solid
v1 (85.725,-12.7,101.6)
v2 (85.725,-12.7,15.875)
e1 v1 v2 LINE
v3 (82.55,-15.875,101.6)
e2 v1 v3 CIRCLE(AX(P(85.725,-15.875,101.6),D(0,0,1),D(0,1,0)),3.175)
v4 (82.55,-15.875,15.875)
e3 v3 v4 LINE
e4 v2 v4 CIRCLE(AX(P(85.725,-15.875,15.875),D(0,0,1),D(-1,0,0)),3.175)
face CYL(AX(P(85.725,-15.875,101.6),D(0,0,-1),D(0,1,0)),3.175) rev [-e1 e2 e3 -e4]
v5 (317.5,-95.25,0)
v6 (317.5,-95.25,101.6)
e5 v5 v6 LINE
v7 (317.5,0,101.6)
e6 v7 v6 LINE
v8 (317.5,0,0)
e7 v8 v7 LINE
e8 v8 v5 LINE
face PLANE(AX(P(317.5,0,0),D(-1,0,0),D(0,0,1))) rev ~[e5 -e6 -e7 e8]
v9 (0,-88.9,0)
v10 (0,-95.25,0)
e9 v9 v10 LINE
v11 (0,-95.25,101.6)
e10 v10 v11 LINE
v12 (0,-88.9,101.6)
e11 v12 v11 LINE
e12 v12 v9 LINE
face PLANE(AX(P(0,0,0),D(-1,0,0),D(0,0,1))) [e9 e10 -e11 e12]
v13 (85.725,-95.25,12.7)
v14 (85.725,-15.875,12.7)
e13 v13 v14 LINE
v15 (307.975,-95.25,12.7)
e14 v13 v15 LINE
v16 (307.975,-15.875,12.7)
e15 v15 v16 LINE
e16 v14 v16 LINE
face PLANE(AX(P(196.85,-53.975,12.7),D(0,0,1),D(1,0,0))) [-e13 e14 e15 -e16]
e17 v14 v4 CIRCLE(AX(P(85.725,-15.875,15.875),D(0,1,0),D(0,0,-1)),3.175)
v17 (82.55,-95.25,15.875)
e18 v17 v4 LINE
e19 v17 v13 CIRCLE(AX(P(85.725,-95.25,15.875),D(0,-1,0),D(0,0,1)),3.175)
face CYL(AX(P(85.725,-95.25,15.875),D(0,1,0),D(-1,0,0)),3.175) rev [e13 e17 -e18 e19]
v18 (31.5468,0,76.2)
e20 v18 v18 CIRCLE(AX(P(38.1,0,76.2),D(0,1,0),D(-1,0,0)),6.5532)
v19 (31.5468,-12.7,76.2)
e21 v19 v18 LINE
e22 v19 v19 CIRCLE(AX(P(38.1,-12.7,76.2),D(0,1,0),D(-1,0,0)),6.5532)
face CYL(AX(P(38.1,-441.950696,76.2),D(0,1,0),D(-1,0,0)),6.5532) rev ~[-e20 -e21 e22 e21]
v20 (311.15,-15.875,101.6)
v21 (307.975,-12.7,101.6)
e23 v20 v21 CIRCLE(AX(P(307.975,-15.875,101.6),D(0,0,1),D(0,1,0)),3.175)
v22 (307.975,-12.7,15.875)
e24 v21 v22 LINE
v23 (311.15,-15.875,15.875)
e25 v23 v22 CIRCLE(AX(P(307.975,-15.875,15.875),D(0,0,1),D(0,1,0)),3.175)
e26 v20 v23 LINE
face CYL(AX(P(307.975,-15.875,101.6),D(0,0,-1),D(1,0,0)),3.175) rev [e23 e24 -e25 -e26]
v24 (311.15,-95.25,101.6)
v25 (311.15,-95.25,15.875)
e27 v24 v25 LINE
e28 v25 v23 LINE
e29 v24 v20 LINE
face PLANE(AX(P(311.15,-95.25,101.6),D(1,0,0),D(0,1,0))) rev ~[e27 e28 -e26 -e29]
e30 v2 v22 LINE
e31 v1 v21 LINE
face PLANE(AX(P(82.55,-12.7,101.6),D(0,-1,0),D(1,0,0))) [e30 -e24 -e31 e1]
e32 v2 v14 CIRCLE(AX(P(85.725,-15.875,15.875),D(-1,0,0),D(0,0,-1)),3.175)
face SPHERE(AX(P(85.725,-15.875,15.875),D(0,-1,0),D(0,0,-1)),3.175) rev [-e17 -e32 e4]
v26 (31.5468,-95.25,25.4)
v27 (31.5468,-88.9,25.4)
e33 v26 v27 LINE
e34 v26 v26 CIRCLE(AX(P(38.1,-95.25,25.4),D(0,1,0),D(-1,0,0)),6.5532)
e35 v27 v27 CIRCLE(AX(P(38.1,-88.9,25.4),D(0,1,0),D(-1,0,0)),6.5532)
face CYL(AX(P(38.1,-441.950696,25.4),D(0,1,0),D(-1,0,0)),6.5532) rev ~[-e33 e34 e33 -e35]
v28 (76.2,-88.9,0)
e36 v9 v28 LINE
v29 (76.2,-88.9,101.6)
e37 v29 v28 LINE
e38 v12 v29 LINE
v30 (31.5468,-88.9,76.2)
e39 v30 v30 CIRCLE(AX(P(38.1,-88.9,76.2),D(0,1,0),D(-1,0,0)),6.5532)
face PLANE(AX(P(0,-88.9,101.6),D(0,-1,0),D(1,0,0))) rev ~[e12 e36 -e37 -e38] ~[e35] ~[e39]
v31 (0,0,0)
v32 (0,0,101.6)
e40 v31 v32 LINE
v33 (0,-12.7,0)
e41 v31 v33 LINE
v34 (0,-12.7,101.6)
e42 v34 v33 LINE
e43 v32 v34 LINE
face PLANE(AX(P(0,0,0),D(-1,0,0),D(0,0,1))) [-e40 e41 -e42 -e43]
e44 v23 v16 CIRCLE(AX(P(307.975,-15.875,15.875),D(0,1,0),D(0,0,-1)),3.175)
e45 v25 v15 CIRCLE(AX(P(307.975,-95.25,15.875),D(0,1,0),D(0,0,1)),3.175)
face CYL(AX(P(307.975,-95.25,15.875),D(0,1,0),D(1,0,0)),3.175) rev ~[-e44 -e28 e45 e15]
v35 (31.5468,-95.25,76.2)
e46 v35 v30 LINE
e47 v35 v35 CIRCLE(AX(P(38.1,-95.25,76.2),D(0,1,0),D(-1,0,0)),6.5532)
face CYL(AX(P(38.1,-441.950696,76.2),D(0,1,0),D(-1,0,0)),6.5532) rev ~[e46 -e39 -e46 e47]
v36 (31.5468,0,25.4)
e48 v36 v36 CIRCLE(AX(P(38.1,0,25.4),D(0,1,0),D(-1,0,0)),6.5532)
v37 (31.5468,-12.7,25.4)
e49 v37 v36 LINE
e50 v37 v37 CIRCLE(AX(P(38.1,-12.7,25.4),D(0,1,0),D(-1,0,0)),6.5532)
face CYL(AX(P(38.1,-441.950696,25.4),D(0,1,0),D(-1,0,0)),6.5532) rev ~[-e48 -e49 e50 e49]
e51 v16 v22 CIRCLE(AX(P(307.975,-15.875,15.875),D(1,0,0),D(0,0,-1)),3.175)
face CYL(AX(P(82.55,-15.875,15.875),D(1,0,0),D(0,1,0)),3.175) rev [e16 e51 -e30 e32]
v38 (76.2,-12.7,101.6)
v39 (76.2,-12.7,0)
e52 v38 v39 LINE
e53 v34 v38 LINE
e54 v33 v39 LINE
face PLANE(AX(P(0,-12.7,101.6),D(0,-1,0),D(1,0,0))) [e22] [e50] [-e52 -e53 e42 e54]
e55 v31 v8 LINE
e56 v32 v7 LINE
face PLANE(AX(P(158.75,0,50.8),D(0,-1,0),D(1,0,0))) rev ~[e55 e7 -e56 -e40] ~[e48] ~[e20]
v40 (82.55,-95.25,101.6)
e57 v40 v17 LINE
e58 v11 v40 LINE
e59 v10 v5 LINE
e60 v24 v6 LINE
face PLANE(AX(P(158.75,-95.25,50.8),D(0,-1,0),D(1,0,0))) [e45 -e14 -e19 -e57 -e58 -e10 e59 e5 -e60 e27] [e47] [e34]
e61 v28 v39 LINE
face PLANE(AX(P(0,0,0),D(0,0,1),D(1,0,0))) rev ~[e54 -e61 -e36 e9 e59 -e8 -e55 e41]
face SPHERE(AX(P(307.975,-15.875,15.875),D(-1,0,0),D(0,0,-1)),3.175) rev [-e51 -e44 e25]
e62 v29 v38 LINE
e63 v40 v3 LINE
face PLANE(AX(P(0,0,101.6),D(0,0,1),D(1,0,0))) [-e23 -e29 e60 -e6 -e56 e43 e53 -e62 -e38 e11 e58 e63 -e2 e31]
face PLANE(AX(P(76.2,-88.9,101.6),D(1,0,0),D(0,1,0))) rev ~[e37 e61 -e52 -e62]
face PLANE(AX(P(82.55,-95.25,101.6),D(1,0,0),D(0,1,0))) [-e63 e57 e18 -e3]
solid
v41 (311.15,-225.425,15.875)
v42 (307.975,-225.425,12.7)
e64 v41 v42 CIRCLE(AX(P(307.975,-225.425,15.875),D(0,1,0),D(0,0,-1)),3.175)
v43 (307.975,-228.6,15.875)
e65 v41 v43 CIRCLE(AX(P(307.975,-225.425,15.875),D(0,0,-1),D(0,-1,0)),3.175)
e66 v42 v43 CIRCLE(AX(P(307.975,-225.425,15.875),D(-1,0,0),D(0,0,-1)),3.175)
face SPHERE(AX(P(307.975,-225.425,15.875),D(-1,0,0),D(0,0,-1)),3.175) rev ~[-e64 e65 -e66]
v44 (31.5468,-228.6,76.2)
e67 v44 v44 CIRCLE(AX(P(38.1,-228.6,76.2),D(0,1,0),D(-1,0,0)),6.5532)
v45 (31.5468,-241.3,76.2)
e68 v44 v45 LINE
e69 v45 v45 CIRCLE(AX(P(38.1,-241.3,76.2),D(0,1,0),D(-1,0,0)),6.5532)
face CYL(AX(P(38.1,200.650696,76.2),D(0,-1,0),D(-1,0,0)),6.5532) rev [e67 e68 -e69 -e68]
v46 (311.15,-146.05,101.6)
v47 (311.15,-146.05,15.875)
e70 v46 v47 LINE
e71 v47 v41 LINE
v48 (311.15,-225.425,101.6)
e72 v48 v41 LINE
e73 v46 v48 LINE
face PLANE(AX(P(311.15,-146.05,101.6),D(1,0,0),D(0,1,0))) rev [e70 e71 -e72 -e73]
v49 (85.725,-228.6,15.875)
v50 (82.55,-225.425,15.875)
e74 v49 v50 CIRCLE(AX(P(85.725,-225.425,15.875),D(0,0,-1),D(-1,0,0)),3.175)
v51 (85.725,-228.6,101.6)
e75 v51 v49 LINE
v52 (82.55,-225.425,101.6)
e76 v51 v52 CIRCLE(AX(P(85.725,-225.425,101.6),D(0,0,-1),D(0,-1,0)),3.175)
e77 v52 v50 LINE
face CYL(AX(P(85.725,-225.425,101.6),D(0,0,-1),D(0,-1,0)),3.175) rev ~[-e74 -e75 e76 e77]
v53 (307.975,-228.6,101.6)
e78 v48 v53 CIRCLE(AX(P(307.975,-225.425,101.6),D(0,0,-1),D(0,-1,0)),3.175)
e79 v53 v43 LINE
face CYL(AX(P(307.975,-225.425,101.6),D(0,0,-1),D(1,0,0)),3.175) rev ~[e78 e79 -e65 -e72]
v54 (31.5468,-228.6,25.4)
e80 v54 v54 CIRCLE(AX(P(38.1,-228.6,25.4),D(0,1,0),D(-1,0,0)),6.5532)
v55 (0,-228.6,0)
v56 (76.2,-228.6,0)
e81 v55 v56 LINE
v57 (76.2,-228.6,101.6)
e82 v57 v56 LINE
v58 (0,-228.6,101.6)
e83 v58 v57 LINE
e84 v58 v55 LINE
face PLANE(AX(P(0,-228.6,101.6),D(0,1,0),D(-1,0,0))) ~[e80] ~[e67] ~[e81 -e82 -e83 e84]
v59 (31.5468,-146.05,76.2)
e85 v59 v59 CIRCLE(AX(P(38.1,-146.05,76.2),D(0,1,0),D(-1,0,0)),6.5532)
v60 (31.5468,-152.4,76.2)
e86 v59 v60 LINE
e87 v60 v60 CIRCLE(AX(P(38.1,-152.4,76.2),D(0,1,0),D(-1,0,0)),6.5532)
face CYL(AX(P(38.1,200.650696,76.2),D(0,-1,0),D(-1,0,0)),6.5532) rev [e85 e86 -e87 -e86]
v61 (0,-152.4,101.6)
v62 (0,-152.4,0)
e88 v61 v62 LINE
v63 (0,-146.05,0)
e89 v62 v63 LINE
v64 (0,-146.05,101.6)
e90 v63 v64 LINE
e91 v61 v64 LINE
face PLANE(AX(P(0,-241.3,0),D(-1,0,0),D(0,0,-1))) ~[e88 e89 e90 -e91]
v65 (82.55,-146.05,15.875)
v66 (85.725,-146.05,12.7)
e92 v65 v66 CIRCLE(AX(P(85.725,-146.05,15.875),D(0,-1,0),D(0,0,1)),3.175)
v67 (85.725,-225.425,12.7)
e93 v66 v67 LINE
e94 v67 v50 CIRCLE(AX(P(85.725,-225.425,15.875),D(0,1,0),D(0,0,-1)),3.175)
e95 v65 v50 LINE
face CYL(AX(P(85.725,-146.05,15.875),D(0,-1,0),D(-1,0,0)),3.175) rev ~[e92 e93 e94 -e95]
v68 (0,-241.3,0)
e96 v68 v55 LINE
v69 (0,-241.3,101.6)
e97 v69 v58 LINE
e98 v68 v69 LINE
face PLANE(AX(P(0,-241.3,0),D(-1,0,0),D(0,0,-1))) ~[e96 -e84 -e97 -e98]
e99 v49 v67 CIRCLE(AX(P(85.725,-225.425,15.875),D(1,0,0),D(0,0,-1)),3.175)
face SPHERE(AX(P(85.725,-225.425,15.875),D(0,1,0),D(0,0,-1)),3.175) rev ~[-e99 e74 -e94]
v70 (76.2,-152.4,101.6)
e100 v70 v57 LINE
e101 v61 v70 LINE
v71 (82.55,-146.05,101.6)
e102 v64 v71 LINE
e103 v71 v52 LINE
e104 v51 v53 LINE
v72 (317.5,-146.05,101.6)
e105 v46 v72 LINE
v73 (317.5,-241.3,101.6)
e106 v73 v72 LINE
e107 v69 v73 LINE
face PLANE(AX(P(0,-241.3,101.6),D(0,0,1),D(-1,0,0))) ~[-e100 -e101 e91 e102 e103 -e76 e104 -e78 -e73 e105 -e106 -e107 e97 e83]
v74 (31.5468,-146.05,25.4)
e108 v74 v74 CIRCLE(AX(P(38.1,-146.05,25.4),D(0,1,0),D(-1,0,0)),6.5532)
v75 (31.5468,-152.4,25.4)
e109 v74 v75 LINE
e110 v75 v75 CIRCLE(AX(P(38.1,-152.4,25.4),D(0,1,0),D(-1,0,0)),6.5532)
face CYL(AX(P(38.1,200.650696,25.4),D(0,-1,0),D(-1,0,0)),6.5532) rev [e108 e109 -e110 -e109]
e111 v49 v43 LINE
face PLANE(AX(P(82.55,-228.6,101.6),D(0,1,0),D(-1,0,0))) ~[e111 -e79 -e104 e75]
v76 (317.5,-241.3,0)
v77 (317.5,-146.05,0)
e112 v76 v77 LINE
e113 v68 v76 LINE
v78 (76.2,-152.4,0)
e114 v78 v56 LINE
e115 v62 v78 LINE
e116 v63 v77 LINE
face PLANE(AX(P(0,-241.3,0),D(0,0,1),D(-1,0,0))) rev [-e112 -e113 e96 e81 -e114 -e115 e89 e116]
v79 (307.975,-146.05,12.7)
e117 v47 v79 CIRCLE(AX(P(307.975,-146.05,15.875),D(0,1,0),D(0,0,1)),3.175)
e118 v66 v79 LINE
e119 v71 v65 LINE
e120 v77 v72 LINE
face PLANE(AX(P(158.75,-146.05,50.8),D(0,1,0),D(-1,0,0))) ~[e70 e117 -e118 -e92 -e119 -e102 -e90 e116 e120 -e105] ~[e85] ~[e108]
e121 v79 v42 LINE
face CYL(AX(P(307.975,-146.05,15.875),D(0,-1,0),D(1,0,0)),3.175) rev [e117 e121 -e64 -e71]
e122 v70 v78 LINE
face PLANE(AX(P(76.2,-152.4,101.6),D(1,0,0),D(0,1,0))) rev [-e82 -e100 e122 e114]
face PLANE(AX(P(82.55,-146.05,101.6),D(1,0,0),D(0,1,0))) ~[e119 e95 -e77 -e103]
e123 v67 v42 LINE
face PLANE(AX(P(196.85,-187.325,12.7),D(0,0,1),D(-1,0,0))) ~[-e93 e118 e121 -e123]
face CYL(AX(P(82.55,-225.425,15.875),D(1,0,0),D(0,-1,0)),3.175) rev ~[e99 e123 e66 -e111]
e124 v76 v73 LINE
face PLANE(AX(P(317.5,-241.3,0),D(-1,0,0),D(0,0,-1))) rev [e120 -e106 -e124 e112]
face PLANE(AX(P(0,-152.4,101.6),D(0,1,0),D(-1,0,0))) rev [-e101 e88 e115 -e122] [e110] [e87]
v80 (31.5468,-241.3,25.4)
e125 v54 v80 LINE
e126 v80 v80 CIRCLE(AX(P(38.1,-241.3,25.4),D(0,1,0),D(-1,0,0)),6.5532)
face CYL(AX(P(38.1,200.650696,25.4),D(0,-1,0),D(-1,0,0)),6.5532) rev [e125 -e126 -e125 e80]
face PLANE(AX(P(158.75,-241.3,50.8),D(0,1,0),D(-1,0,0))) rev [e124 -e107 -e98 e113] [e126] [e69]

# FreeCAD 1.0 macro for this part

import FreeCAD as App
import Part
import Sketcher

V = App.Vector
Q = App.Units.Quantity


def edges_at(feature, points):
    """Names of the edges that pass closest to the given points."""
    edges = feature.Shape.Edges
    near = lambda p: min(range(len(edges)), key=lambda i: edges[i].distToShape(Part.Vertex(*p))[0])
    return sorted({f"Edge{near(p) + 1}" for p in points})

doc = App.newDocument("Part")
params = doc.addObject("Spreadsheet::Sheet", "Params")
for row, (alias, value) in enumerate([
    ("sketch1_height", "4 in"),
    ("sketch1_width", "12.5 in"),
    ("pad1_length", "3.75 in"),
    ("sketch2_width", "3 in"),
    ("sketch3_width", "9 in"),
    ("sketch3_height", "3.25 in"),
    ("pocket2_length", "3.5 in"),
    ("fillet_radius", "0.125 in"),
    ("sketch4_diameter", "0.516 in"),
    ("hole_diameter", "0.516 in"),
], start=1):
    params.set(f"A{row}", alias)
    params.set(f"B{row}", "=" + value)
    params.setAlias(f"B{row}", alias)

body = doc.addObject("PartDesign::Body", "Body")

# Sketch on XZ plane
sketch1 = body.newObject("Sketcher::SketchObject", "Sketch")
sketch1.AttachmentSupport = (doc.getObject("XZ_Plane"), [""])
sketch1.MapMode = "FlatFace"
sketch1.addGeometry([
    Part.LineSegment(V(0, 102, 0), V(0, 0, 0)),
    Part.LineSegment(V(0, 0, 0), V(318, 0, 0)),
    Part.LineSegment(V(318, 0, 0), V(318, 102, 0)),
    Part.LineSegment(V(318, 102, 0), V(0, 102, 0)),
], False)
sketch1.addConstraint([
    Sketcher.Constraint("Coincident", 0, 2, 1, 1),
    Sketcher.Constraint("Coincident", 1, 2, 2, 1),
    Sketcher.Constraint("Coincident", 2, 2, 3, 1),
    Sketcher.Constraint("Coincident", 3, 2, 0, 1),
    Sketcher.Constraint("Vertical", 0),
    Sketcher.Constraint("Horizontal", 1),
    Sketcher.Constraint("Vertical", 2),
    Sketcher.Constraint("Horizontal", 3),
    Sketcher.Constraint("Coincident", 0, 2, -1, 1),
    Sketcher.Constraint("DistanceY", 0, 2, 0, 1, Q("4 in")),
    Sketcher.Constraint("DistanceX", 1, 1, 1, 2, Q("12.5 in")),
])
sketch1.setExpression("Constraints[9]", "Params.sketch1_height")
sketch1.setExpression("Constraints[10]", "Params.sketch1_width")
pad1 = body.newObject("PartDesign::Pad", "Pad")
pad1.Profile = sketch1
pad1.setExpression("Length", "Params.pad1_length")

# Sketch on XY plane
sketch2 = body.newObject("Sketcher::SketchObject", "Sketch001")
sketch2.AttachmentSupport = (doc.getObject("XY_Plane"), [""])
sketch2.MapMode = "FlatFace"
sketch2.AttachmentOffset = App.Placement(V(0, 0, 4 * 25.4), App.Rotation())
sketch2.addGeometry([
    Part.LineSegment(V(0, -13, 0), V(0, -89, 0)),
    Part.LineSegment(V(0, -89, 0), V(76, -89, 0)),
    Part.LineSegment(V(76, -89, 0), V(76, -13, 0)),
    Part.LineSegment(V(76, -13, 0), V(0, -13, 0)),
], False)
sketch2.addConstraint([
    Sketcher.Constraint("Coincident", 0, 2, 1, 1),
    Sketcher.Constraint("Coincident", 1, 2, 2, 1),
    Sketcher.Constraint("Coincident", 2, 2, 3, 1),
    Sketcher.Constraint("Coincident", 3, 2, 0, 1),
    Sketcher.Constraint("Vertical", 0),
    Sketcher.Constraint("Horizontal", 1),
    Sketcher.Constraint("Vertical", 2),
    Sketcher.Constraint("Horizontal", 3),
    Sketcher.Constraint("PointOnObject", 0, 2, -2),
    Sketcher.Constraint("Equal", 3, 0),
    Sketcher.Constraint("DistanceX", 1, 1, 1, 2, Q("3 in")),
    Sketcher.Constraint("DistanceY", 0, 2, -1, 1, Q("3.5 in")),
])
sketch2.setExpression("Constraints[10]", "Params.sketch2_width")
pocket1 = body.newObject("PartDesign::Pocket", "Pocket")
pocket1.Profile = sketch2
pocket1.Type = "ThroughAll"

# Sketch on XY plane
sketch3 = body.newObject("Sketcher::SketchObject", "Sketch002")
sketch3.AttachmentSupport = (doc.getObject("XY_Plane"), [""])
sketch3.MapMode = "FlatFace"
sketch3.AttachmentOffset = App.Placement(V(0, 0, 4 * 25.4), App.Rotation())
sketch3.addGeometry([
    Part.LineSegment(V(83, -13, 0), V(83, -95, 0)),
    Part.LineSegment(V(83, -95, 0), V(311, -95, 0)),
    Part.LineSegment(V(311, -95, 0), V(311, -13, 0)),
    Part.LineSegment(V(311, -13, 0), V(83, -13, 0)),
], False)
sketch3.addConstraint([
    Sketcher.Constraint("Coincident", 0, 2, 1, 1),
    Sketcher.Constraint("Coincident", 1, 2, 2, 1),
    Sketcher.Constraint("Coincident", 2, 2, 3, 1),
    Sketcher.Constraint("Coincident", 3, 2, 0, 1),
    Sketcher.Constraint("Vertical", 0),
    Sketcher.Constraint("Horizontal", 1),
    Sketcher.Constraint("Vertical", 2),
    Sketcher.Constraint("Horizontal", 3),
    Sketcher.Constraint("DistanceX", 1, 1, 1, 2, Q("9 in")),
    Sketcher.Constraint("DistanceY", 0, 2, 0, 1, Q("3.25 in")),
    Sketcher.Constraint("DistanceY", 2, 2, -1, 1, Q("0.5 in")),
    Sketcher.Constraint("DistanceX", -1, 1, 0, 2, Q("3.25 in")),
])
sketch3.setExpression("Constraints[8]", "Params.sketch3_width")
sketch3.setExpression("Constraints[9]", "Params.sketch3_height")
pocket2 = body.newObject("PartDesign::Pocket", "Pocket001")
pocket2.Profile = sketch3
pocket2.setExpression("Length", "Params.pocket2_length")
doc.recompute()

fillet = body.newObject("PartDesign::Fillet", "Fillet")
fillet.Base = (pocket2, edges_at(pocket2, [
    (82.55, -53.975, 12.7),
    (196.85, -12.7, 12.7),
    (311.15, -53.975, 12.7),
    (311.15, -12.7, 57.15),
    (82.55, -12.7, 57.15),
]))
fillet.setExpression("Radius", "Params.fillet_radius")

# Sketch on XZ plane
sketch4 = body.newObject("Sketcher::SketchObject", "Sketch003")
sketch4.AttachmentSupport = (doc.getObject("XZ_Plane"), [""])
sketch4.MapMode = "FlatFace"
sketch4.AttachmentOffset = App.Placement(V(0, 0, 3.75 * 25.4), App.Rotation())
sketch4.addGeometry([
    Part.Circle(V(38, 76, 0), V(0, 0, 1), 7),
    Part.Circle(V(38, 25, 0), V(0, 0, 1), 7),
], False)
sketch4.addConstraint([
    Sketcher.Constraint("Equal", 0, 1),
    Sketcher.Constraint("Vertical", 0, 3, 1, 3),
    Sketcher.Constraint("Diameter", 0, Q("0.516 in")),
    Sketcher.Constraint("DistanceY", -1, 1, 0, 3, Q("3 in")),
    Sketcher.Constraint("DistanceY", -1, 1, 1, 3, Q("1 in")),
    Sketcher.Constraint("DistanceX", -1, 1, 0, 3, Q("1.5 in")),
])
sketch4.setExpression("Constraints[2]", "Params.sketch4_diameter")
doc.recompute()
hole = body.newObject("PartDesign::Hole", "Hole")
hole.Profile = sketch4
hole.ThreadType = "None"
hole.setExpression("Diameter", "Params.hole_diameter")
hole.DepthType = "ThroughAll"
body2 = doc.addObject("PartDesign::Body", "Body001")
doc.recompute()

mirroring = doc.addObject("Part::Mirroring", "Mirroring")
mirroring.Source = body
mirroring.Base = V(95.204857, -120.65, 39.72799)
mirroring.Normal = V(0, -1, 0)
body2.BaseFeature = mirroring
doc.recompute()
mirroring.Visibility = False

doc.recompute()
